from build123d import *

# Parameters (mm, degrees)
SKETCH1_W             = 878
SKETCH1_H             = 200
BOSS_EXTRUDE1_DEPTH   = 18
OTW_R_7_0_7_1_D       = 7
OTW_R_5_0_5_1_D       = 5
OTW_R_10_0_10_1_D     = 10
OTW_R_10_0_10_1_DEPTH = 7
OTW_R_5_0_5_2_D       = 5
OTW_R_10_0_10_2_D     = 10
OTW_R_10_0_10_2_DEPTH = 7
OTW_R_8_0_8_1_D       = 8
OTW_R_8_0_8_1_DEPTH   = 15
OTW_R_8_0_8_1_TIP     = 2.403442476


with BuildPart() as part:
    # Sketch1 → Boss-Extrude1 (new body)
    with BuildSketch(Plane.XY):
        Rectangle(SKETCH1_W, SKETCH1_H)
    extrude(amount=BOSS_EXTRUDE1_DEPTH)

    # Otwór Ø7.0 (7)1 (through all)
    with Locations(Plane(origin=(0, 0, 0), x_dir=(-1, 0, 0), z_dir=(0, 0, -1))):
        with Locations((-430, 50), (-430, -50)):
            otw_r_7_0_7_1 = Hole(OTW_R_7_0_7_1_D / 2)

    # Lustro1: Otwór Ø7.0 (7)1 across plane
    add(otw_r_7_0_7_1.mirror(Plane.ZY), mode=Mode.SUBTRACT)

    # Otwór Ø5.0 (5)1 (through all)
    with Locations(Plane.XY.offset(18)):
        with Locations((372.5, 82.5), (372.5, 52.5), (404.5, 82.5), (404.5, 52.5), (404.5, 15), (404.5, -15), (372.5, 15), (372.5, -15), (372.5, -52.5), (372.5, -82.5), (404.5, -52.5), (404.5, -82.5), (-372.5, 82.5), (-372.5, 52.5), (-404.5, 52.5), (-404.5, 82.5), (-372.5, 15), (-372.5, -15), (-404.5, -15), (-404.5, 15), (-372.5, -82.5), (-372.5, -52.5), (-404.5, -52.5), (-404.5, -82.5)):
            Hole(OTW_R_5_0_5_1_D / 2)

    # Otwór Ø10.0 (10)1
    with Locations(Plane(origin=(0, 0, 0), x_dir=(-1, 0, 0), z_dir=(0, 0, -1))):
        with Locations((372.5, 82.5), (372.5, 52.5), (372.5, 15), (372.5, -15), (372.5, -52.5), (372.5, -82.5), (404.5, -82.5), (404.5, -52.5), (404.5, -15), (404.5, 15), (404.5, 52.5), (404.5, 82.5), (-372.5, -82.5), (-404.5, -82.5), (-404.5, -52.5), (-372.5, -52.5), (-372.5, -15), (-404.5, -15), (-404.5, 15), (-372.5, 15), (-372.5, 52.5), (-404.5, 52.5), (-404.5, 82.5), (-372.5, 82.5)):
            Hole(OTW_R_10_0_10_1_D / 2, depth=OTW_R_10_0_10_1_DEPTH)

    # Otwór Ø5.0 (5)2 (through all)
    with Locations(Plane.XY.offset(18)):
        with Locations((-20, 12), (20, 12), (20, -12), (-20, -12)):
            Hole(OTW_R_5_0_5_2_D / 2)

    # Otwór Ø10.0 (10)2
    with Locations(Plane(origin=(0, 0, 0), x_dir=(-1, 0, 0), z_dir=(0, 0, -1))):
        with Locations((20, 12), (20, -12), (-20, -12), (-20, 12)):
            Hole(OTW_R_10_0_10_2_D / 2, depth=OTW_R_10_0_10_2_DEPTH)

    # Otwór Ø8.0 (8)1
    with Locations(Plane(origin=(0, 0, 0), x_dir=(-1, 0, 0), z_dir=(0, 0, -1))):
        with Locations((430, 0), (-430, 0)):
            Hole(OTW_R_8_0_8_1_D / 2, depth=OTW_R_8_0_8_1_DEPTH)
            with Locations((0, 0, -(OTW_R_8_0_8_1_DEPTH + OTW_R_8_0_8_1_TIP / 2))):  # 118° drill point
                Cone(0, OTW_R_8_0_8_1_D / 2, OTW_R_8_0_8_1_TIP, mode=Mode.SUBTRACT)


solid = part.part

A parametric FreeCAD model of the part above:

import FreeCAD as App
import Part
import Sketcher

V = App.Vector
Q = App.Units.Quantity


def add_polygon(sketch, points):
    """Adds a closed chain of lines whose ends are joined by coincident constraints."""
    first, n = sketch.GeometryCount, len(points)
    for a, b in zip(points, points[1:] + points[:1]):
        sketch.addGeometry(Part.LineSegment(App.Vector(*a, 0), App.Vector(*b, 0)), False)
    for i in range(n):
        sketch.addConstraint(Sketcher.Constraint("Coincident", first + i, 2, first + (i + 1) % n, 1))

doc = App.newDocument("Part")
params = doc.addObject("Spreadsheet::Sheet", "Params")
for row, (alias, value) in enumerate([
    ("sketch1_width", "878 mm"),
    ("sketch1_height", "200 mm"),
    ("pad1_length", "18 mm"),
    ("sketch2_diameter", "7 mm"),
    ("hole_diameter", "7 mm"),
    ("sketch3_diameter", "5 mm"),
    ("hole2_diameter", "5 mm"),
    ("sketch4_diameter", "10 mm"),
    ("hole3_diameter", "10 mm"),
    ("hole3_depth", "7 mm"),
    ("sketch5_diameter", "5 mm"),
    ("hole4_diameter", "5 mm"),
    ("sketch6_diameter", "10 mm"),
    ("hole5_diameter", "10 mm"),
    ("hole5_depth", "7 mm"),
    ("sketch7_diameter", "8 mm"),
    ("hole6_diameter", "8 mm"),
    ("hole6_depth", "15 mm"),
], start=1):
    params.set(f"A{row}", alias)
    params.set(f"B{row}", "=" + value)
    params.setAlias(f"B{row}", alias)

body = doc.addObject("PartDesign::Body", "Body")

# Sketch on XY plane
sketch1 = doc.addObject("Sketcher::SketchObject", "Sketch")
body.addObject(sketch1)
sketch1.AttachmentSupport = (doc.XY_Plane, [""])
sketch1.MapMode = "FlatFace"
add_polygon(sketch1, [(-439, 100), (-439, -100), (439, -100), (439, 100)])  # lines 0-3
sketch1.addConstraint([
    Sketcher.Constraint("Vertical", 0),
    Sketcher.Constraint("Horizontal", 1),
    Sketcher.Constraint("Vertical", 2),
    Sketcher.Constraint("Horizontal", 3),
    Sketcher.Constraint("Symmetric", 0, 2, 2, 2, -1, 1),
    Sketcher.Constraint("DistanceX", 1, 1, 1, 2, Q("878 mm")),
    Sketcher.Constraint("DistanceY", 0, 2, 0, 1, Q("200 mm")),
])
sketch1.setExpression("Constraints[9]", "Params.sketch1_width")
sketch1.setExpression("Constraints[10]", "Params.sketch1_height")
pad1 = doc.addObject("PartDesign::Pad", "Pad")
body.addObject(pad1)
pad1.Profile = sketch1
pad1.setExpression("Length", "Params.pad1_length")

# Sketch on XY plane
sketch2 = doc.addObject("Sketcher::SketchObject", "Sketch001")
body.addObject(sketch2)
sketch2.AttachmentSupport = (doc.XY_Plane, [""])
sketch2.MapMode = "FlatFace"
sketch2.addGeometry([
    Part.Circle(V(430, 50, 0), V(0, 0, 1), 3.5),
    Part.Circle(V(430, -50, 0), V(0, 0, 1), 3.5),
], False)
sketch2.addConstraint([
    Sketcher.Constraint("Equal", 0, 1),
    Sketcher.Constraint("Symmetric", 0, 3, 1, 3, -1),
    Sketcher.Constraint("Diameter", 0, Q("7 mm")),
    Sketcher.Constraint("DistanceX", -1, 1, 0, 3, Q("430 mm")),
    Sketcher.Constraint("DistanceY", -1, 1, 0, 3, Q("50 mm")),
])
sketch2.setExpression("Constraints[2]", "Params.sketch2_diameter")
doc.recompute()
hole = doc.addObject("PartDesign::Hole", "Hole")
body.addObject(hole)
hole.Profile = sketch2
hole.ThreadType = "None"
hole.setExpression("Diameter", "Params.hole_diameter")
hole.DepthType = "ThroughAll"
hole.Reversed = True
doc.recompute()

mirrored = doc.addObject("PartDesign::Mirrored", "Mirrored")
body.addObject(mirrored)
mirrored.Originals = [hole]
mirrored.MirrorPlane = (doc.YZ_Plane, [""])
body.Tip = mirrored

# Sketch on XY plane
sketch3 = doc.addObject("Sketcher::SketchObject", "Sketch002")
body.addObject(sketch3)
sketch3.AttachmentSupport = (doc.XY_Plane, [""])
sketch3.MapMode = "FlatFace"
sketch3.AttachmentOffset = App.Placement(V(0, 0, 18), App.Rotation())
sketch3.addGeometry([
    Part.Circle(V(372.5, 82.5, 0), V(0, 0, 1), 2.5),  # 0
    Part.Circle(V(372.5, 52.5, 0), V(0, 0, 1), 2.5),  # 1
    Part.Circle(V(404.5, 82.5, 0), V(0, 0, 1), 2.5),  # 2
    Part.Circle(V(404.5, 52.5, 0), V(0, 0, 1), 2.5),  # 3
    Part.Circle(V(404.5, 15, 0), V(0, 0, 1), 2.5),  # 4
    Part.Circle(V(404.5, -15, 0), V(0, 0, 1), 2.5),  # 5
    Part.Circle(V(372.5, 15, 0), V(0, 0, 1), 2.5),  # 6
    Part.Circle(V(372.5, -15, 0), V(0, 0, 1), 2.5),  # 7
    Part.Circle(V(372.5, -52.5, 0), V(0, 0, 1), 2.5),  # 8
    Part.Circle(V(372.5, -82.5, 0), V(0, 0, 1), 2.5),  # 9
    Part.Circle(V(404.5, -52.5, 0), V(0, 0, 1), 2.5),  # 10
    Part.Circle(V(404.5, -82.5, 0), V(0, 0, 1), 2.5),  # 11
    Part.Circle(V(-372.5, 82.5, 0), V(0, 0, 1), 2.5),  # 12
    Part.Circle(V(-372.5, 52.5, 0), V(0, 0, 1), 2.5),  # 13
    Part.Circle(V(-404.5, 52.5, 0), V(0, 0, 1), 2.5),  # 14
    Part.Circle(V(-404.5, 82.5, 0), V(0, 0, 1), 2.5),  # 15
    Part.Circle(V(-372.5, 15, 0), V(0, 0, 1), 2.5),  # 16
    Part.Circle(V(-372.5, -15, 0), V(0, 0, 1), 2.5),  # 17
    Part.Circle(V(-404.5, -15, 0), V(0, 0, 1), 2.5),  # 18
    Part.Circle(V(-404.5, 15, 0), V(0, 0, 1), 2.5),  # 19
    Part.Circle(V(-372.5, -82.5, 0), V(0, 0, 1), 2.5),  # 20
    Part.Circle(V(-372.5, -52.5, 0), V(0, 0, 1), 2.5),  # 21
    Part.Circle(V(-404.5, -52.5, 0), V(0, 0, 1), 2.5),  # 22
    Part.Circle(V(-404.5, -82.5, 0), V(0, 0, 1), 2.5),  # 23
], False)
sketch3.addConstraint([
    Sketcher.Constraint("Equal", 0, 1),
    Sketcher.Constraint("Equal", 1, 2),
    Sketcher.Constraint("Equal", 2, 3),
    Sketcher.Constraint("Equal", 3, 4),
    Sketcher.Constraint("Equal", 4, 5),
    Sketcher.Constraint("Equal", 5, 6),
    Sketcher.Constraint("Equal", 6, 7),
    Sketcher.Constraint("Equal", 7, 8),
    Sketcher.Constraint("Equal", 8, 9),
    Sketcher.Constraint("Equal", 9, 10),
    Sketcher.Constraint("Equal", 10, 11),
    Sketcher.Constraint("Equal", 11, 12),
    Sketcher.Constraint("Equal", 12, 13),
    Sketcher.Constraint("Equal", 13, 14),
    Sketcher.Constraint("Equal", 14, 15),
    Sketcher.Constraint("Equal", 15, 16),
    Sketcher.Constraint("Equal", 16, 17),
    Sketcher.Constraint("Equal", 17, 18),
    Sketcher.Constraint("Equal", 18, 19),
    Sketcher.Constraint("Equal", 19, 20),
    Sketcher.Constraint("Equal", 20, 21),
    Sketcher.Constraint("Equal", 21, 22),
    Sketcher.Constraint("Equal", 22, 23),
    Sketcher.Constraint("Symmetric", 9, 3, 12, 3, -1, 1),
    Sketcher.Constraint("Symmetric", 8, 3, 13, 3, -1, 1),
    Sketcher.Constraint("Symmetric", 10, 3, 14, 3, -1, 1),
    Sketcher.Constraint("Symmetric", 11, 3, 15, 3, -1, 1),
    Sketcher.Constraint("Symmetric", 7, 3, 16, 3, -1, 1),
    Sketcher.Constraint("Symmetric", 6, 3, 17, 3, -1, 1),
    Sketcher.Constraint("Symmetric", 4, 3, 18, 3, -1, 1),
    Sketcher.Constraint("Symmetric", 5, 3, 19, 3, -1, 1),
    Sketcher.Constraint("Symmetric", 0, 3, 20, 3, -1, 1),
    Sketcher.Constraint("Symmetric", 1, 3, 21, 3, -1, 1),
    Sketcher.Constraint("Symmetric", 3, 3, 22, 3, -1, 1),
    Sketcher.Constraint("Symmetric", 2, 3, 23, 3, -1, 1),
    Sketcher.Constraint("Symmetric", 0, 3, 12, 3, -2),
    Sketcher.Constraint("Symmetric", 1, 3, 13, 3, -2),
    Sketcher.Constraint("Symmetric", 3, 3, 14, 3, -2),
    Sketcher.Constraint("Symmetric", 2, 3, 15, 3, -2),
    Sketcher.Constraint("Symmetric", 6, 3, 16, 3, -2),
    Sketcher.Constraint("Symmetric", 5, 3, 18, 3, -2),
    Sketcher.Constraint("Horizontal", 0, 3, 2, 3),
    Sketcher.Constraint("Horizontal", 1, 3, 3, 3),
    Sketcher.Constraint("Horizontal", 4, 3, 6, 3),
    Sketcher.Constraint("Vertical", 0, 3, 1, 3),
    Sketcher.Constraint("Vertical", 2, 3, 3, 3),
    Sketcher.Constraint("Vertical", 3, 3, 4, 3),
    Sketcher.Constraint("Vertical", 1, 3, 6, 3),
    Sketcher.Constraint("Diameter", 0, Q("5 mm")),
    Sketcher.Constraint("DistanceY", -1, 1, 4, 3, Q("15 mm")),
    Sketcher.Constraint("DistanceY", 1, 3, 0, 3, Q("30 mm")),
    Sketcher.Constraint("DistanceX", 0, 3, 2, 3, Q("32 mm")),
    Sketcher.Constraint("DistanceY", 8, 3, 1, 3, Q("105 mm")),
    Sketcher.Constraint("DistanceX", 12, 3, 0, 3, Q("745 mm")),
])
sketch3.setExpression("Constraints[48]", "Params.sketch3_diameter")
doc.recompute()
hole2 = doc.addObject("PartDesign::Hole", "Hole001")
body.addObject(hole2)
hole2.Profile = sketch3
hole2.ThreadType = "None"
hole2.setExpression("Diameter", "Params.hole2_diameter")
hole2.DepthType = "ThroughAll"

# Sketch on XY plane
sketch4 = doc.addObject("Sketcher::SketchObject", "Sketch003")
body.addObject(sketch4)
sketch4.AttachmentSupport = (doc.XY_Plane, [""])
sketch4.MapMode = "FlatFace"
sketch4.addGeometry([
    Part.Circle(V(-372, 82, 0), V(0, 0, 1), 5),  # 0
    Part.Circle(V(-372, 52, 0), V(0, 0, 1), 5),  # 1
    Part.Circle(V(-372, 15, 0), V(0, 0, 1), 5),  # 2
    Part.Circle(V(-372, -15, 0), V(0, 0, 1), 5),  # 3
    Part.Circle(V(-372, -52, 0), V(0, 0, 1), 5),  # 4
    Part.Circle(V(-372, -82, 0), V(0, 0, 1), 5),  # 5
    Part.Circle(V(-404, -82, 0), V(0, 0, 1), 5),  # 6
    Part.Circle(V(-404, -52, 0), V(0, 0, 1), 5),  # 7
    Part.Circle(V(-404, -15, 0), V(0, 0, 1), 5),  # 8
    Part.Circle(V(-404, 15, 0), V(0, 0, 1), 5),  # 9
    Part.Circle(V(-404, 52, 0), V(0, 0, 1), 5),  # 10
    Part.Circle(V(-404, 82, 0), V(0, 0, 1), 5),  # 11
    Part.Circle(V(372, -82, 0), V(0, 0, 1), 5),  # 12
    Part.Circle(V(404, -82, 0), V(0, 0, 1), 5),  # 13
    Part.Circle(V(404, -52, 0), V(0, 0, 1), 5),  # 14
    Part.Circle(V(372, -52, 0), V(0, 0, 1), 5),  # 15
    Part.Circle(V(372, -15, 0), V(0, 0, 1), 5),  # 16
    Part.Circle(V(404, -15, 0), V(0, 0, 1), 5),  # 17
    Part.Circle(V(404, 15, 0), V(0, 0, 1), 5),  # 18
    Part.Circle(V(372, 15, 0), V(0, 0, 1), 5),  # 19
    Part.Circle(V(372, 52, 0), V(0, 0, 1), 5),  # 20
    Part.Circle(V(404, 52, 0), V(0, 0, 1), 5),  # 21
    Part.Circle(V(404, 82, 0), V(0, 0, 1), 5),  # 22
    Part.Circle(V(372, 82, 0), V(0, 0, 1), 5),  # 23
], False)
sketch4.addConstraint([
    Sketcher.Constraint("Equal", 0, 1),
    Sketcher.Constraint("Equal", 1, 2),
    Sketcher.Constraint("Equal", 2, 3),
    Sketcher.Constraint("Equal", 3, 4),
    Sketcher.Constraint("Equal", 4, 5),
    Sketcher.Constraint("Equal", 5, 6),
    Sketcher.Constraint("Equal", 6, 7),
    Sketcher.Constraint("Equal", 7, 8),
    Sketcher.Constraint("Equal", 8, 9),
    Sketcher.Constraint("Equal", 9, 10),
    Sketcher.Constraint("Equal", 10, 11),
    Sketcher.Constraint("Equal", 11, 12),
    Sketcher.Constraint("Equal", 12, 13),
    Sketcher.Constraint("Equal", 13, 14),
    Sketcher.Constraint("Equal", 14, 15),
    Sketcher.Constraint("Equal", 15, 16),
    Sketcher.Constraint("Equal", 16, 17),
    Sketcher.Constraint("Equal", 17, 18),
    Sketcher.Constraint("Equal", 18, 19),
    Sketcher.Constraint("Equal", 19, 20),
    Sketcher.Constraint("Equal", 20, 21),
    Sketcher.Constraint("Equal", 21, 22),
    Sketcher.Constraint("Equal", 22, 23),
    Sketcher.Constraint("Symmetric", 0, 3, 12, 3, -1, 1),
    Sketcher.Constraint("Symmetric", 11, 3, 13, 3, -1, 1),
    Sketcher.Constraint("Symmetric", 10, 3, 14, 3, -1, 1),
    Sketcher.Constraint("Symmetric", 1, 3, 15, 3, -1, 1),
    Sketcher.Constraint("Symmetric", 2, 3, 16, 3, -1, 1),
    Sketcher.Constraint("Symmetric", 9, 3, 17, 3, -1, 1),
    Sketcher.Constraint("Symmetric", 8, 3, 18, 3, -1, 1),
    Sketcher.Constraint("Symmetric", 3, 3, 19, 3, -1, 1),
    Sketcher.Constraint("Symmetric", 4, 3, 20, 3, -1, 1),
    Sketcher.Constraint("Symmetric", 7, 3, 21, 3, -1, 1),
    Sketcher.Constraint("Symmetric", 6, 3, 22, 3, -1, 1),
    Sketcher.Constraint("Symmetric", 5, 3, 23, 3, -1, 1),
    Sketcher.Constraint("Symmetric", 5, 3, 12, 3, -2),
    Sketcher.Constraint("Symmetric", 6, 3, 13, 3, -2),
    Sketcher.Constraint("Symmetric", 7, 3, 14, 3, -2),
    Sketcher.Constraint("Symmetric", 4, 3, 15, 3, -2),
    Sketcher.Constraint("Symmetric", 3, 3, 16, 3, -2),
    Sketcher.Constraint("Symmetric", 8, 3, 17, 3, -2),
    Sketcher.Constraint("Horizontal", 5, 3, 6, 3),
    Sketcher.Constraint("Horizontal", 4, 3, 7, 3),
    Sketcher.Constraint("Horizontal", 3, 3, 8, 3),
    Sketcher.Constraint("Vertical", 0, 3, 1, 3),
    Sketcher.Constraint("Vertical", 1, 3, 2, 3),
    Sketcher.Constraint("Vertical", 6, 3, 7, 3),
    Sketcher.Constraint("Vertical", 7, 3, 8, 3),
    Sketcher.Constraint("Diameter", 0, Q("10 mm")),
    Sketcher.Constraint("DistanceY", -1, 1, 2, 3, Q("15 mm")),
    Sketcher.Constraint("DistanceY", 1, 3, 0, 3, Q("30 mm")),
    Sketcher.Constraint("DistanceY", 4, 3, 1, 3, Q("105 mm")),
    Sketcher.Constraint("DistanceX", 6, 3, 5, 3, Q("32 mm")),
    Sketcher.Constraint("DistanceX", 5, 3, 12, 3, Q("745 mm")),
])
sketch4.setExpression("Constraints[48]", "Params.sketch4_diameter")
doc.recompute()
hole3 = doc.addObject("PartDesign::Hole", "Hole002")
body.addObject(hole3)
hole3.Profile = sketch4
hole3.ThreadType = "None"
hole3.setExpression("Diameter", "Params.hole3_diameter")
hole3.DepthType = "Dimension"
hole3.setExpression("Depth", "Params.hole3_depth")
hole3.DrillPoint = "Flat"
hole3.Reversed = True

# Sketch on XY plane
sketch5 = doc.addObject("Sketcher::SketchObject", "Sketch004")
body.addObject(sketch5)
sketch5.AttachmentSupport = (doc.XY_Plane, [""])
sketch5.MapMode = "FlatFace"
sketch5.AttachmentOffset = App.Placement(V(0, 0, 18), App.Rotation())
sketch5.addGeometry([
    Part.Circle(V(-20, 12, 0), V(0, 0, 1), 2.5),
    Part.Circle(V(20, 12, 0), V(0, 0, 1), 2.5),
    Part.Circle(V(20, -12, 0), V(0, 0, 1), 2.5),
    Part.Circle(V(-20, -12, 0), V(0, 0, 1), 2.5),
], False)
sketch5.addConstraint([
    Sketcher.Constraint("Equal", 0, 1),
    Sketcher.Constraint("Equal", 1, 2),
    Sketcher.Constraint("Equal", 2, 3),
    Sketcher.Constraint("Symmetric", 0, 3, 2, 3, -1, 1),
    Sketcher.Constraint("Symmetric", 1, 3, 3, 3, -1, 1),
    Sketcher.Constraint("Symmetric", 0, 3, 1, 3, -2),
    Sketcher.Constraint("Diameter", 0, Q("5 mm")),
    Sketcher.Constraint("DistanceX", 0, 3, -1, 1, Q("20 mm")),
    Sketcher.Constraint("DistanceY", -1, 1, 0, 3, Q("12 mm")),
])
sketch5.setExpression("Constraints[6]", "Params.sketch5_diameter")
doc.recompute()
hole4 = doc.addObject("PartDesign::Hole", "Hole003")
body.addObject(hole4)
hole4.Profile = sketch5
hole4.ThreadType = "None"
hole4.setExpression("Diameter", "Params.hole4_diameter")
hole4.DepthType = "ThroughAll"

# Sketch on XY plane
sketch6 = doc.addObject("Sketcher::SketchObject", "Sketch005")
body.addObject(sketch6)
sketch6.AttachmentSupport = (doc.XY_Plane, [""])
sketch6.MapMode = "FlatFace"
sketch6.addGeometry([
    Part.Circle(V(-20, 12, 0), V(0, 0, 1), 5),
    Part.Circle(V(-20, -12, 0), V(0, 0, 1), 5),
    Part.Circle(V(20, -12, 0), V(0, 0, 1), 5),
    Part.Circle(V(20, 12, 0), V(0, 0, 1), 5),
], False)
sketch6.addConstraint([
    Sketcher.Constraint("Equal", 0, 1),
    Sketcher.Constraint("Equal", 1, 2),
    Sketcher.Constraint("Equal", 2, 3),
    Sketcher.Constraint("Symmetric", 0, 3, 2, 3, -1, 1),
    Sketcher.Constraint("Symmetric", 1, 3, 3, 3, -1, 1),
    Sketcher.Constraint("Symmetric", 1, 3, 2, 3, -2),
    Sketcher.Constraint("Diameter", 0, Q("10 mm")),
    Sketcher.Constraint("DistanceX", 0, 3, -1, 1, Q("20 mm")),
    Sketcher.Constraint("DistanceY", -1, 1, 0, 3, Q("12 mm")),
])
sketch6.setExpression("Constraints[6]", "Params.sketch6_diameter")
doc.recompute()
hole5 = doc.addObject("PartDesign::Hole", "Hole004")
body.addObject(hole5)
hole5.Profile = sketch6
hole5.ThreadType = "None"
hole5.setExpression("Diameter", "Params.hole5_diameter")
hole5.DepthType = "Dimension"
hole5.setExpression("Depth", "Params.hole5_depth")
hole5.DrillPoint = "Flat"
hole5.Reversed = True

# Sketch on XY plane
sketch7 = doc.addObject("Sketcher::SketchObject", "Sketch006")
body.addObject(sketch7)
sketch7.AttachmentSupport = (doc.XY_Plane, [""])
sketch7.MapMode = "FlatFace"
sketch7.addGeometry([
    Part.Circle(V(-430, 0, 0), V(0, 0, 1), 4),
    Part.Circle(V(430, 0, 0), V(0, 0, 1), 4),
], False)
sketch7.addConstraint([
    Sketcher.Constraint("Equal", 0, 1),
    Sketcher.Constraint("Symmetric", 0, 3, 1, 3, -1, 1),
    Sketcher.Constraint("PointOnObject", 0, 3, -1),
    Sketcher.Constraint("Diameter", 0, Q("8 mm")),
    Sketcher.Constraint("DistanceX", 0, 3, -1, 1, Q("430 mm")),
])
sketch7.setExpression("Constraints[3]", "Params.sketch7_diameter")
doc.recompute()
hole6 = doc.addObject("PartDesign::Hole", "Hole005")
body.addObject(hole6)
hole6.Profile = sketch7
hole6.ThreadType = "None"
hole6.setExpression("Diameter", "Params.hole6_diameter")
hole6.DepthType = "Dimension"
hole6.setExpression("Depth", "Params.hole6_depth")
hole6.DrillPoint = "Angled"
hole6.DrillPointAngle = 118
hole6.Reversed = True

doc.recompute()
